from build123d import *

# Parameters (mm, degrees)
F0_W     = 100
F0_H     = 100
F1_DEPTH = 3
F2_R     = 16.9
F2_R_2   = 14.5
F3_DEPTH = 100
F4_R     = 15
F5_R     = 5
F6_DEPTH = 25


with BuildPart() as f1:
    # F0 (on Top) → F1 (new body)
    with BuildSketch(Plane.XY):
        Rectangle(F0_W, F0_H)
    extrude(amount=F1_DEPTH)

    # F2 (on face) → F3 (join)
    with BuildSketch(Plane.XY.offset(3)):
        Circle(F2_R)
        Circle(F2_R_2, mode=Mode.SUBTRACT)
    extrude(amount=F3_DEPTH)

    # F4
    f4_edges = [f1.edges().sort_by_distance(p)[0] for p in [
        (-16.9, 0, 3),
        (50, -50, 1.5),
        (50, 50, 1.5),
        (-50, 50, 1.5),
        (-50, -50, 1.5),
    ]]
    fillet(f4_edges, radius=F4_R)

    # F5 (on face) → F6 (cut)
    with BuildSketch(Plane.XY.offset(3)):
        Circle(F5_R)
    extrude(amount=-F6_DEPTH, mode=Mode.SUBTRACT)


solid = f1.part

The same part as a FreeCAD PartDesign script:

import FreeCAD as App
import Part
import Sketcher
from FreeCAD import Vector
Q = App.Units.Quantity


def edges_at(feature, points):
    """Names of the edges that pass closest to the given points."""
    edges = feature.Shape.Edges
    near = lambda p: min(range(len(edges)), key=lambda i: edges[i].distToShape(Part.Vertex(*p))[0])
    return sorted({f"Edge{near(p) + 1}" for p in points})

doc = App.newDocument("Part")
body = doc.addObject("PartDesign::Body", "Body")

sketch1 = doc.addObject("Sketcher::SketchObject", "Sketch")
body.addObject(sketch1)
sketch1.AttachmentSupport = (doc.XY_Plane, [""])
sketch1.MapMode = "FlatFace"
sketch1.addGeometry([
    Part.LineSegment(Vector(-50, 50, 0), Vector(-50, -50, 0)),
    Part.LineSegment(Vector(-50, -50, 0), Vector(50, -50, 0)),
    Part.LineSegment(Vector(50, -50, 0), Vector(50, 50, 0)),
    Part.LineSegment(Vector(50, 50, 0), Vector(-50, 50, 0)),
], False)
sketch1.addConstraint([
    Sketcher.Constraint("Coincident", 0, 2, 1, 1),
    Sketcher.Constraint("Coincident", 1, 2, 2, 1),
    Sketcher.Constraint("Coincident", 2, 2, 3, 1),
    Sketcher.Constraint("Coincident", 3, 2, 0, 1),
    Sketcher.Constraint("Vertical", 0),
    Sketcher.Constraint("Horizontal", 1),
    Sketcher.Constraint("Vertical", 2),
    Sketcher.Constraint("Horizontal", 3),
    Sketcher.Constraint("Symmetric", 0, 2, 2, 2, -1, 1),
    Sketcher.Constraint("Equal", 3, 0),
    Sketcher.Constraint("DistanceX", 1, 1, 1, 2, Q("100 mm")),
])
pad1 = doc.addObject("PartDesign::Pad", "Pad")
body.addObject(pad1)
pad1.Profile = sketch1
pad1.Length = 3

sketch2 = doc.addObject("Sketcher::SketchObject", "Sketch001")
body.addObject(sketch2)
sketch2.AttachmentSupport = (doc.XY_Plane, [""])
sketch2.MapMode = "FlatFace"
sketch2.AttachmentOffset = App.Placement(Vector(0, 0, 3), App.Rotation())
sketch2.addGeometry([
    Part.Circle(Vector(0, 0, 0), Vector(0, 0, 1), 17),
    Part.Circle(Vector(0, 0, 0), Vector(0, 0, 1), 14),
], False)
sketch2.addConstraint([
    Sketcher.Constraint("Coincident", 0, 3, -1, 1),
    Sketcher.Constraint("Coincident", 1, 3, -1, 1),
    Sketcher.Constraint("Diameter", 1, Q("29 mm")),
    Sketcher.Constraint("Diameter", 0, Q("33.8 mm")),
])
pad2 = doc.addObject("PartDesign::Pad", "Pad001")
body.addObject(pad2)
pad2.Profile = sketch2
pad2.Length = 100
doc.recompute()

fillet = doc.addObject("PartDesign::Fillet", "Fillet")
body.addObject(fillet)
fillet.Base = (pad2, edges_at(pad2, [
    (-16.9, 0, 3),
    (50, -50, 1.5),
    (50, 50, 1.5),
    (-50, 50, 1.5),
    (-50, -50, 1.5),
]))
fillet.Radius = 15

sketch3 = doc.addObject("Sketcher::SketchObject", "Sketch002")
body.addObject(sketch3)
sketch3.AttachmentSupport = (doc.XY_Plane, [""])
sketch3.MapMode = "FlatFace"
sketch3.AttachmentOffset = App.Placement(Vector(0, 0, 3), App.Rotation())
sketch3.addGeometry(Part.Circle(Vector(0, 0, 0), Vector(0, 0, 1), 5), False)
sketch3.addConstraint([
    Sketcher.Constraint("Coincident", 0, 3, -1, 1),
    Sketcher.Constraint("Diameter", 0, Q("10 mm")),
])
pocket1 = doc.addObject("PartDesign::Pocket", "Pocket")
body.addObject(pocket1)
pocket1.Profile = sketch3
pocket1.Length = 25

doc.recompute()
